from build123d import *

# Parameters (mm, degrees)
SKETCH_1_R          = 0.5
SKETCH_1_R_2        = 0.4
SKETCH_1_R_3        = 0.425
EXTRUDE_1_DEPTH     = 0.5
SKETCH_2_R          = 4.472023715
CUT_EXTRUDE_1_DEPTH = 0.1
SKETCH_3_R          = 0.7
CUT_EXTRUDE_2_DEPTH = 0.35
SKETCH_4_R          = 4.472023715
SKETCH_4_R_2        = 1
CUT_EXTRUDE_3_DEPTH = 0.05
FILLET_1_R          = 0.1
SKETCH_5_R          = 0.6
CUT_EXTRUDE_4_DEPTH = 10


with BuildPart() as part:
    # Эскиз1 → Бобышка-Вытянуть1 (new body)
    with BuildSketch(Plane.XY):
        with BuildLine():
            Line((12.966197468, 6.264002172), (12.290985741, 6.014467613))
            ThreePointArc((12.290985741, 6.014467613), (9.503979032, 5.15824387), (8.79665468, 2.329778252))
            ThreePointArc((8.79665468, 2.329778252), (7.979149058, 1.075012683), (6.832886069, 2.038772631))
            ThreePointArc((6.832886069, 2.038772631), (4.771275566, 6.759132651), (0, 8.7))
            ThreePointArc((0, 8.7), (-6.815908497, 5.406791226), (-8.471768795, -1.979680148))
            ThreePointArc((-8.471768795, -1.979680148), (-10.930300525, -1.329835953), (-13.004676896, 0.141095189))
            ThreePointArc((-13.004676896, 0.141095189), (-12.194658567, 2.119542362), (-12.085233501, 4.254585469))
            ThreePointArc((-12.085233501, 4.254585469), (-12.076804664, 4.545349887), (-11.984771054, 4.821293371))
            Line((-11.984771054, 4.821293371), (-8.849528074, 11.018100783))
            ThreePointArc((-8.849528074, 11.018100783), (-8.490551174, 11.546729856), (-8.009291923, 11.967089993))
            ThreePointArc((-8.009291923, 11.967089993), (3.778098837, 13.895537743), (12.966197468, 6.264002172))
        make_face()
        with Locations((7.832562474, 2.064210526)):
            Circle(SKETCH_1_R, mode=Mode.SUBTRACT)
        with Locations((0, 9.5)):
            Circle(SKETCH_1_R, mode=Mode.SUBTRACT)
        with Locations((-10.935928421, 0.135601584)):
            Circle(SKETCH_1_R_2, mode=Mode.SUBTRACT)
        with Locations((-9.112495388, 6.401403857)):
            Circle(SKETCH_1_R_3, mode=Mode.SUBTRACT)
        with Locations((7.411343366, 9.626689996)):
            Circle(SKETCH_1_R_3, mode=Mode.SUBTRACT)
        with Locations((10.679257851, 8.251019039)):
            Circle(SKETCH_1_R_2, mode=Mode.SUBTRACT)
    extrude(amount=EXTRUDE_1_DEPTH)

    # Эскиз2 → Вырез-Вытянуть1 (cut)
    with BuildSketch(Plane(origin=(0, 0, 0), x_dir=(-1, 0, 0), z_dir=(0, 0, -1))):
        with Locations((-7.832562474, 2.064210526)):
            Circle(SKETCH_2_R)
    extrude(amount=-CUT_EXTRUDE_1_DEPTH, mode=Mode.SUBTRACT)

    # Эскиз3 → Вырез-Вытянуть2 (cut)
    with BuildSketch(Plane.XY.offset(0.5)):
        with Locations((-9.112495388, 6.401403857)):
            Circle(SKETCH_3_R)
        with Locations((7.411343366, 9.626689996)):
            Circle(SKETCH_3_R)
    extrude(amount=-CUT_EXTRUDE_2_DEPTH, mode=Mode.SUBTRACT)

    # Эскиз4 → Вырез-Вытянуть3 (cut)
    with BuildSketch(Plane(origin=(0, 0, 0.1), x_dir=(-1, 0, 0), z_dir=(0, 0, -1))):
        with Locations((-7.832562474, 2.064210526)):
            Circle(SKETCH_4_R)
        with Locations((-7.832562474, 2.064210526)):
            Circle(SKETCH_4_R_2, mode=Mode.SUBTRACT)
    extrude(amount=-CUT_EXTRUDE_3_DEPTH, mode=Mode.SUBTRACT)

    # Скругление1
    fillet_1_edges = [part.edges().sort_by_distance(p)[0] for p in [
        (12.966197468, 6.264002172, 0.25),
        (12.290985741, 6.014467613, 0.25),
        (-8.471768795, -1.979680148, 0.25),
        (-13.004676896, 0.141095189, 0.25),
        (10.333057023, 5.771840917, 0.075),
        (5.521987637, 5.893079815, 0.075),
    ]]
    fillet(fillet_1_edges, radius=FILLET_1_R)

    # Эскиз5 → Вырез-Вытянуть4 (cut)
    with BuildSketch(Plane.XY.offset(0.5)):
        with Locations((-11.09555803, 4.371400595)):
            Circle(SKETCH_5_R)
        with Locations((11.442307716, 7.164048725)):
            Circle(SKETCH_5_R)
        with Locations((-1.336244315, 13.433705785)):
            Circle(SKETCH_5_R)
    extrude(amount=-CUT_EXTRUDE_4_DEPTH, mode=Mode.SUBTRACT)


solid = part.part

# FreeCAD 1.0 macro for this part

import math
import FreeCAD as App
import Part
import Sketcher
from FreeCAD import Vector


def edges_at(feature, points):
    """Names of the edges that pass closest to the given points."""
    edges = feature.Shape.Edges
    near = lambda p: min(range(len(edges)), key=lambda i: edges[i].distToShape(Part.Vertex(*p))[0])
    return sorted({f"Edge{near(p) + 1}" for p in points})

doc = App.newDocument("Part")
params = doc.addObject("Spreadsheet::Sheet", "Params")
for row, (alias, value) in enumerate([
    ("sketch1_diameter", "1 mm"),
    ("sketch1_radius", "1 mm"),
    ("sketch1_diameter2", "0.8 mm"),
    ("sketch1_radius2", "14.4 mm"),
    ("sketch1_radius3", "2.5 mm"),
    ("pad1_length", "0.5 mm"),
    ("pocket1_length", "0.1 mm"),
    ("sketch3_diameter", "1.4 mm"),
    ("pocket2_length", "0.35 mm"),
    ("sketch4_diameter", "2 mm"),
    ("pocket3_length", "0.05 mm"),
    ("fillet_radius", "0.1 mm"),
    ("sketch5_diameter", "1.2 mm"),
    ("pocket4_length", "10 mm"),
], start=1):
    params.set(f"A{row}", alias)
    params.set(f"B{row}", "=" + value)
    params.setAlias(f"B{row}", alias)

body = doc.addObject("PartDesign::Body", "Body")

sketch1 = doc.addObject("Sketcher::SketchObject", "Sketch")
body.addObject(sketch1)
sketch1.AttachmentSupport = (doc.XY_Plane, [""])
sketch1.MapMode = "FlatFace"
sketch1.addGeometry([
    Part.LineSegment(Vector(12.290986, 6.014468, 0), Vector(12.966197, 6.264002, 0)),
    Part.ArcOfCircle(Part.Circle(Vector(0, 0, 0), Vector(0, 0, 1), 14.4), math.radians(25.785303), math.radians(123.793465)),
    Part.ArcOfCircle(Part.Circle(Vector(-6.61879, 9.88947, 0), Vector(0, 0, 1), 2.5), math.radians(123.793465), math.radians(153.163104)),
    Part.LineSegment(Vector(-8.849528, 11.018101, 0), Vector(-11.984771, 4.821293, 0)),
    Part.ArcOfCircle(Part.Circle(Vector(-11.095558, 4.371401, 0), Vector(0, 0, 1), 0.996546), math.radians(153.163104), math.radians(186.73169)),
    Part.ArcOfCircle(Part.Circle(Vector(-18.407833, 3.508305, 0), Vector(0, 0, 1), 6.366491), math.radians(-31.930878), math.radians(6.73169)),
    Part.ArcOfCircle(Part.Circle(Vector(-7.907264, 5.13155, 0), Vector(0, 0, 1), 7.133601), math.radians(-135.607465), math.radians(-94.538748)),
    Part.ArcOfCircle(Part.Circle(Vector(0, 0, 0), Vector(0, 0, 1), 8.7), math.radians(90), math.radians(193.15284)),
    Part.ArcOfCircle(Part.Circle(Vector(0, 1.864902, 0), Vector(0, 0, 1), 6.835098), math.radians(1.457641), math.radians(90)),
    Part.ArcOfCircle(Part.Circle(Vector(7.832562, 2.064211, 0), Vector(0, 0, 1), 1), math.radians(-178.542359), math.radians(15.40069)),
    Part.ArcOfCircle(Part.Circle(Vector(11.655992, 3.117408, 0), Vector(0, 0, 1), 2.965834), math.radians(77.637098), math.radians(195.40069)),
    Part.Circle(Vector(7.832562, 2.064211, 0), Vector(0, 0, 1), 0.5),
    Part.Circle(Vector(-10.935928, 0.135602, 0), Vector(0, 0, 1), 0.4),
    Part.Circle(Vector(10.679258, 8.251019, 0), Vector(0, 0, 1), 0.4),
    Part.Circle(Vector(7.411343, 9.62669, 0), Vector(0, 0, 1), 0.425),
    Part.Circle(Vector(0, 9.5, 0), Vector(0, 0, 1), 0.5),
    Part.Circle(Vector(-9.112495, 6.401404, 0), Vector(0, 0, 1), 0.425),
], False)
sketch1.addConstraint([
    Sketcher.Constraint("Coincident", 0, 2, 1, 1),
    Sketcher.Constraint("Tangent", 1, 2, 2, 1),
    Sketcher.Constraint("Tangent", 2, 2, 3, 1),
    Sketcher.Constraint("Tangent", 3, 2, 4, 1),
    Sketcher.Constraint("Tangent", 4, 2, 5, 2),
    Sketcher.Constraint("Coincident", 5, 1, 6, 1),
    Sketcher.Constraint("Coincident", 6, 2, 7, 2),
    Sketcher.Constraint("Tangent", 7, 1, 8, 2),
    Sketcher.Constraint("Tangent", 8, 1, 9, 1),
    Sketcher.Constraint("Tangent", 9, 2, 10, 2),
    Sketcher.Constraint("Coincident", 10, 1, 0, 1),
    Sketcher.Constraint("Coincident", 1, 3, -1, 1),
    Sketcher.Constraint("Coincident", 7, 3, -1, 1),
    Sketcher.Constraint("Coincident", 11, 3, 9, 3),
    Sketcher.Constraint("Equal", 12, 13),
    Sketcher.Constraint("Equal", 11, 15),
    Sketcher.Constraint("Equal", 14, 16),
    Sketcher.Constraint("PointOnObject", 8, 3, -2),
    Sketcher.Constraint("PointOnObject", 15, 3, -2),
    Sketcher.Constraint("Diameter", 11, 1.0),
    Sketcher.Constraint("Radius", 9, 1.0),
    Sketcher.Constraint("Diameter", 12, 0.8),
    Sketcher.Constraint("Radius", 1, 14.4),
    Sketcher.Constraint("Radius", 2, 2.5),
    Sketcher.Constraint("Radius", 7, 8.7),
    Sketcher.Constraint("Diameter", 14, 0.85),
    Sketcher.Constraint("DistanceY", -1, 1, 15, 3, 9.5),
    Sketcher.Constraint("Radius", 6, 7.133601),
    Sketcher.Constraint("Radius", 5, 6.366491),
    Sketcher.Constraint("Radius", 4, 0.996546),
    Sketcher.Constraint("Radius", 8, 6.835098),
    Sketcher.Constraint("Radius", 10, 2.965834),
    Sketcher.Constraint("DistanceY", -1, 1, 4, 3, 4.371401),
    Sketcher.Constraint("DistanceY", -1, 1, 12, 3, 0.135602),
    Sketcher.Constraint("DistanceY", -1, 1, 2, 2, 11.018101),
    Sketcher.Constraint("DistanceY", 5, 1, 3, 2, 4.680198),
    Sketcher.Constraint("DistanceX", 2, 3, -1, 1, 6.61879),
    Sketcher.Constraint("DistanceY", -1, 1, 6, 3, 5.13155),
    Sketcher.Constraint("DistanceY", -1, 1, 9, 3, 2.064211),
    Sketcher.Constraint("DistanceY", -1, 1, 10, 3, 3.117408),
    Sketcher.Constraint("DistanceX", 12, 3, -1, 1, 10.935928),
    Sketcher.Constraint("DistanceY", -1, 1, 13, 3, 8.251019),
    Sketcher.Constraint("DistanceY", -1, 1, 14, 3, 9.62669),
    Sketcher.Constraint("DistanceY", 6, 2, -1, 1, 1.97968),
    Sketcher.Constraint("DistanceX", 14, 3, 9, 3, 0.421219),
    Sketcher.Constraint("DistanceX", 16, 3, 6, 3, 1.205232),
    Sketcher.Constraint("DistanceX", 13, 3, 0, 2, 2.28694),
    Sketcher.Constraint("DistanceY", 11, 3, 0, 2, 4.199792),
    Sketcher.Constraint("DistanceY", 3, 2, 16, 3, 1.58011),
    Sketcher.Constraint("DistanceX", 10, 1, 0, 2, 0.675212),
])
sketch1.setExpression("Constraints[19]", "Params.sketch1_diameter")
sketch1.setExpression("Constraints[20]", "Params.sketch1_radius")
sketch1.setExpression("Constraints[21]", "Params.sketch1_diameter2")
sketch1.setExpression("Constraints[22]", "Params.sketch1_radius2")
sketch1.setExpression("Constraints[23]", "Params.sketch1_radius3")
pad1 = doc.addObject("PartDesign::Pad", "Pad")
body.addObject(pad1)
pad1.Profile = sketch1
pad1.setExpression("Length", "Params.pad1_length")

sketch2 = doc.addObject("Sketcher::SketchObject", "Sketch001")
body.addObject(sketch2)
sketch2.AttachmentSupport = (doc.XY_Plane, [""])
sketch2.MapMode = "FlatFace"
sketch2.addGeometry(Part.Circle(Vector(7.832562, 2.064211, 0), Vector(0, 0, 1), 4.472024), False)
sketch2.addConstraint([
    Sketcher.Constraint("Diameter", 0, 8.944047),
    Sketcher.Constraint("DistanceY", -1, 1, 0, 3, 2.064211),
    Sketcher.Constraint("DistanceX", -1, 1, 0, 3, 7.832562),
])
pocket1 = doc.addObject("PartDesign::Pocket", "Pocket")
body.addObject(pocket1)
pocket1.Profile = sketch2
pocket1.setExpression("Length", "Params.pocket1_length")
pocket1.Reversed = True

sketch3 = doc.addObject("Sketcher::SketchObject", "Sketch002")
body.addObject(sketch3)
sketch3.AttachmentSupport = (doc.XY_Plane, [""])
sketch3.MapMode = "FlatFace"
sketch3.AttachmentOffset = App.Placement(Vector(0, 0, 0.5), App.Rotation())
sketch3.addGeometry([
    Part.Circle(Vector(-9.112495, 6.401404, 0), Vector(0, 0, 1), 0.7),
    Part.Circle(Vector(7.411343, 9.62669, 0), Vector(0, 0, 1), 0.7),
], False)
sketch3.addConstraint([
    Sketcher.Constraint("Equal", 0, 1),
    Sketcher.Constraint("Diameter", 0, 1.4),
    Sketcher.Constraint("DistanceY", -1, 1, 1, 3, 9.62669),
    Sketcher.Constraint("DistanceX", 0, 3, 1, 3, 16.523839),
    Sketcher.Constraint("DistanceX", 0, 3, -1, 1, 9.112495),
    Sketcher.Constraint("DistanceY", -1, 1, 0, 3, 6.401404),
])
sketch3.setExpression("Constraints[1]", "Params.sketch3_diameter")
pocket2 = doc.addObject("PartDesign::Pocket", "Pocket001")
body.addObject(pocket2)
pocket2.Profile = sketch3
pocket2.setExpression("Length", "Params.pocket2_length")

sketch4 = doc.addObject("Sketcher::SketchObject", "Sketch003")
body.addObject(sketch4)
sketch4.AttachmentSupport = (doc.XY_Plane, [""])
sketch4.MapMode = "FlatFace"
sketch4.AttachmentOffset = App.Placement(Vector(0, 0, 0.1), App.Rotation())
sketch4.addGeometry([
    Part.Circle(Vector(7.832562, 2.064211, 0), Vector(0, 0, 1), 4.472024),
    Part.Circle(Vector(7.832562, 2.064211, 0), Vector(0, 0, 1), 1),
], False)
sketch4.addConstraint([
    Sketcher.Constraint("Coincident", 1, 3, 0, 3),
    Sketcher.Constraint("Diameter", 1, 2.0),
    Sketcher.Constraint("Diameter", 0, 8.944047),
    Sketcher.Constraint("DistanceY", -1, 1, 0, 3, 2.064211),
    Sketcher.Constraint("DistanceX", -1, 1, 0, 3, 7.832562),
])
sketch4.setExpression("Constraints[1]", "Params.sketch4_diameter")
pocket3 = doc.addObject("PartDesign::Pocket", "Pocket002")
body.addObject(pocket3)
pocket3.Profile = sketch4
pocket3.setExpression("Length", "Params.pocket3_length")
pocket3.Reversed = True
doc.recompute()

fillet = doc.addObject("PartDesign::Fillet", "Fillet")
body.addObject(fillet)
fillet.Base = (pocket3, edges_at(pocket3, [
    (12.966, 6.264, 0.25),
    (12.291, 6.014, 0.25),
    (-8.472, -1.98, 0.25),
    (-13.005, 0.141, 0.25),
    (10.333, 5.772, 0.075),
    (5.522, 5.893, 0.075),
]))
fillet.setExpression("Radius", "Params.fillet_radius")

sketch5 = doc.addObject("Sketcher::SketchObject", "Sketch004")
body.addObject(sketch5)
sketch5.AttachmentSupport = (doc.XY_Plane, [""])
sketch5.MapMode = "FlatFace"
sketch5.AttachmentOffset = App.Placement(Vector(0, 0, 0.5), App.Rotation())
sketch5.addGeometry([
    Part.Circle(Vector(-11.095558, 4.371401, 0), Vector(0, 0, 1), 0.6),
    Part.Circle(Vector(11.442308, 7.164049, 0), Vector(0, 0, 1), 0.6),
    Part.Circle(Vector(-1.336244, 13.433706, 0), Vector(0, 0, 1), 0.6),
], False)
sketch5.addConstraint([
    Sketcher.Constraint("Equal", 0, 1),
    Sketcher.Constraint("Equal", 1, 2),
    Sketcher.Constraint("Diameter", 0, 1.2),
    Sketcher.Constraint("DistanceY", -1, 1, 0, 3, 4.371401),
    Sketcher.Constraint("DistanceX", 0, 3, -1, 1, 11.095558),
    Sketcher.Constraint("DistanceY", -1, 1, 1, 3, 7.164049),
    Sketcher.Constraint("DistanceX", -1, 1, 1, 3, 11.442308),
    Sketcher.Constraint("DistanceX", 2, 3, -1, 1, 1.336244),
    Sketcher.Constraint("DistanceY", -1, 1, 2, 3, 13.433706),
])
sketch5.setExpression("Constraints[2]", "Params.sketch5_diameter")
pocket4 = doc.addObject("PartDesign::Pocket", "Pocket003")
body.addObject(pocket4)
pocket4.Profile = sketch5
pocket4.setExpression("Length", "Params.pocket4_length")

doc.recompute()
